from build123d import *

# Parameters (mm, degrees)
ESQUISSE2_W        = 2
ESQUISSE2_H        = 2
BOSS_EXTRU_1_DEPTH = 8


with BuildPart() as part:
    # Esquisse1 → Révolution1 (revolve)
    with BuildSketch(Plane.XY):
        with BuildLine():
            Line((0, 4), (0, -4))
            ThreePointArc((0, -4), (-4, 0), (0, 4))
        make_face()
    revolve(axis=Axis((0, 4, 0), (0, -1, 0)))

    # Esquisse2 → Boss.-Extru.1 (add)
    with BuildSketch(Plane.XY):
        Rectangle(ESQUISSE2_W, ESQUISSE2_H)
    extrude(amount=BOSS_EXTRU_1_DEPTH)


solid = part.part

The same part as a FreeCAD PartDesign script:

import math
import FreeCAD as App
import Part
import Sketcher
from FreeCAD import Vector


def add_polygon(sketch, points):
    """Adds a closed chain of lines whose ends are joined by coincident constraints."""
    first, n = sketch.GeometryCount, len(points)
    for a, b in zip(points, points[1:] + points[:1]):
        sketch.addGeometry(Part.LineSegment(App.Vector(*a, 0), App.Vector(*b, 0)), False)
    for i in range(n):
        sketch.addConstraint(Sketcher.Constraint("Coincident", first + i, 2, first + (i + 1) % n, 1))

doc = App.newDocument("Part")
params = doc.addObject("Spreadsheet::Sheet", "Params")
for row, (alias, value) in enumerate([
    ("sketch1_radius", "4 mm"),
    ("revolution_angle", "360 deg"),
    ("sketch2_width", "2 mm"),
    ("pad1_length", "8 mm"),
], start=1):
    params.set(f"A{row}", alias)
    params.set(f"B{row}", "=" + value)
    params.setAlias(f"B{row}", alias)

body = doc.addObject("PartDesign::Body", "Body")

# Sketch on XY plane
sketch1 = doc.addObject("Sketcher::SketchObject", "Sketch")
body.addObject(sketch1)
sketch1.AttachmentSupport = (doc.XY_Plane, [""])
sketch1.MapMode = "FlatFace"
sketch1.addGeometry([
    Part.LineSegment(Vector(0, -4, 0), Vector(0, 4, 0)),
    Part.ArcOfCircle(Part.Circle(Vector(0, 0, 0), Vector(0, 0, 1), 4), math.radians(90), math.radians(270)),
], False)
sketch1.addConstraint([
    Sketcher.Constraint("Coincident", 0, 1, 1, 2),
    Sketcher.Constraint("Coincident", 1, 1, 0, 2),
    Sketcher.Constraint("Vertical", 0),
    Sketcher.Constraint("Coincident", 1, 3, -1, 1),
    Sketcher.Constraint("PointOnObject", 0, 1, -2),
    Sketcher.Constraint("Radius", 1, 4.0),
])
sketch1.setExpression("Constraints[5]", "Params.sketch1_radius")
revolution = doc.addObject("PartDesign::Revolution", "Revolution")
body.addObject(revolution)
revolution.Profile = sketch1
revolution.ReferenceAxis = (sketch1, ["V_Axis"])
revolution.setExpression("Angle", "Params.revolution_angle")

# Sketch on XY plane
sketch2 = doc.addObject("Sketcher::SketchObject", "Sketch001")
body.addObject(sketch2)
sketch2.AttachmentSupport = (doc.XY_Plane, [""])
sketch2.MapMode = "FlatFace"
add_polygon(sketch2, [(-1, 1), (-1, -1), (1, -1), (1, 1)])  # lines 0-3
sketch2.addConstraint([
    Sketcher.Constraint("Vertical", 0),
    Sketcher.Constraint("Horizontal", 1),
    Sketcher.Constraint("Vertical", 2),
    Sketcher.Constraint("Horizontal", 3),
    Sketcher.Constraint("Symmetric", 0, 2, 2, 2, -1, 1),
    Sketcher.Constraint("Equal", 3, 0),
    Sketcher.Constraint("DistanceX", 1, 1, 1, 2, 2.0),
])
sketch2.setExpression("Constraints[10]", "Params.sketch2_width")
pad1 = doc.addObject("PartDesign::Pad", "Pad")
body.addObject(pad1)
pad1.Profile = sketch2
pad1.setExpression("Length", "Params.pad1_length")

doc.recompute()
